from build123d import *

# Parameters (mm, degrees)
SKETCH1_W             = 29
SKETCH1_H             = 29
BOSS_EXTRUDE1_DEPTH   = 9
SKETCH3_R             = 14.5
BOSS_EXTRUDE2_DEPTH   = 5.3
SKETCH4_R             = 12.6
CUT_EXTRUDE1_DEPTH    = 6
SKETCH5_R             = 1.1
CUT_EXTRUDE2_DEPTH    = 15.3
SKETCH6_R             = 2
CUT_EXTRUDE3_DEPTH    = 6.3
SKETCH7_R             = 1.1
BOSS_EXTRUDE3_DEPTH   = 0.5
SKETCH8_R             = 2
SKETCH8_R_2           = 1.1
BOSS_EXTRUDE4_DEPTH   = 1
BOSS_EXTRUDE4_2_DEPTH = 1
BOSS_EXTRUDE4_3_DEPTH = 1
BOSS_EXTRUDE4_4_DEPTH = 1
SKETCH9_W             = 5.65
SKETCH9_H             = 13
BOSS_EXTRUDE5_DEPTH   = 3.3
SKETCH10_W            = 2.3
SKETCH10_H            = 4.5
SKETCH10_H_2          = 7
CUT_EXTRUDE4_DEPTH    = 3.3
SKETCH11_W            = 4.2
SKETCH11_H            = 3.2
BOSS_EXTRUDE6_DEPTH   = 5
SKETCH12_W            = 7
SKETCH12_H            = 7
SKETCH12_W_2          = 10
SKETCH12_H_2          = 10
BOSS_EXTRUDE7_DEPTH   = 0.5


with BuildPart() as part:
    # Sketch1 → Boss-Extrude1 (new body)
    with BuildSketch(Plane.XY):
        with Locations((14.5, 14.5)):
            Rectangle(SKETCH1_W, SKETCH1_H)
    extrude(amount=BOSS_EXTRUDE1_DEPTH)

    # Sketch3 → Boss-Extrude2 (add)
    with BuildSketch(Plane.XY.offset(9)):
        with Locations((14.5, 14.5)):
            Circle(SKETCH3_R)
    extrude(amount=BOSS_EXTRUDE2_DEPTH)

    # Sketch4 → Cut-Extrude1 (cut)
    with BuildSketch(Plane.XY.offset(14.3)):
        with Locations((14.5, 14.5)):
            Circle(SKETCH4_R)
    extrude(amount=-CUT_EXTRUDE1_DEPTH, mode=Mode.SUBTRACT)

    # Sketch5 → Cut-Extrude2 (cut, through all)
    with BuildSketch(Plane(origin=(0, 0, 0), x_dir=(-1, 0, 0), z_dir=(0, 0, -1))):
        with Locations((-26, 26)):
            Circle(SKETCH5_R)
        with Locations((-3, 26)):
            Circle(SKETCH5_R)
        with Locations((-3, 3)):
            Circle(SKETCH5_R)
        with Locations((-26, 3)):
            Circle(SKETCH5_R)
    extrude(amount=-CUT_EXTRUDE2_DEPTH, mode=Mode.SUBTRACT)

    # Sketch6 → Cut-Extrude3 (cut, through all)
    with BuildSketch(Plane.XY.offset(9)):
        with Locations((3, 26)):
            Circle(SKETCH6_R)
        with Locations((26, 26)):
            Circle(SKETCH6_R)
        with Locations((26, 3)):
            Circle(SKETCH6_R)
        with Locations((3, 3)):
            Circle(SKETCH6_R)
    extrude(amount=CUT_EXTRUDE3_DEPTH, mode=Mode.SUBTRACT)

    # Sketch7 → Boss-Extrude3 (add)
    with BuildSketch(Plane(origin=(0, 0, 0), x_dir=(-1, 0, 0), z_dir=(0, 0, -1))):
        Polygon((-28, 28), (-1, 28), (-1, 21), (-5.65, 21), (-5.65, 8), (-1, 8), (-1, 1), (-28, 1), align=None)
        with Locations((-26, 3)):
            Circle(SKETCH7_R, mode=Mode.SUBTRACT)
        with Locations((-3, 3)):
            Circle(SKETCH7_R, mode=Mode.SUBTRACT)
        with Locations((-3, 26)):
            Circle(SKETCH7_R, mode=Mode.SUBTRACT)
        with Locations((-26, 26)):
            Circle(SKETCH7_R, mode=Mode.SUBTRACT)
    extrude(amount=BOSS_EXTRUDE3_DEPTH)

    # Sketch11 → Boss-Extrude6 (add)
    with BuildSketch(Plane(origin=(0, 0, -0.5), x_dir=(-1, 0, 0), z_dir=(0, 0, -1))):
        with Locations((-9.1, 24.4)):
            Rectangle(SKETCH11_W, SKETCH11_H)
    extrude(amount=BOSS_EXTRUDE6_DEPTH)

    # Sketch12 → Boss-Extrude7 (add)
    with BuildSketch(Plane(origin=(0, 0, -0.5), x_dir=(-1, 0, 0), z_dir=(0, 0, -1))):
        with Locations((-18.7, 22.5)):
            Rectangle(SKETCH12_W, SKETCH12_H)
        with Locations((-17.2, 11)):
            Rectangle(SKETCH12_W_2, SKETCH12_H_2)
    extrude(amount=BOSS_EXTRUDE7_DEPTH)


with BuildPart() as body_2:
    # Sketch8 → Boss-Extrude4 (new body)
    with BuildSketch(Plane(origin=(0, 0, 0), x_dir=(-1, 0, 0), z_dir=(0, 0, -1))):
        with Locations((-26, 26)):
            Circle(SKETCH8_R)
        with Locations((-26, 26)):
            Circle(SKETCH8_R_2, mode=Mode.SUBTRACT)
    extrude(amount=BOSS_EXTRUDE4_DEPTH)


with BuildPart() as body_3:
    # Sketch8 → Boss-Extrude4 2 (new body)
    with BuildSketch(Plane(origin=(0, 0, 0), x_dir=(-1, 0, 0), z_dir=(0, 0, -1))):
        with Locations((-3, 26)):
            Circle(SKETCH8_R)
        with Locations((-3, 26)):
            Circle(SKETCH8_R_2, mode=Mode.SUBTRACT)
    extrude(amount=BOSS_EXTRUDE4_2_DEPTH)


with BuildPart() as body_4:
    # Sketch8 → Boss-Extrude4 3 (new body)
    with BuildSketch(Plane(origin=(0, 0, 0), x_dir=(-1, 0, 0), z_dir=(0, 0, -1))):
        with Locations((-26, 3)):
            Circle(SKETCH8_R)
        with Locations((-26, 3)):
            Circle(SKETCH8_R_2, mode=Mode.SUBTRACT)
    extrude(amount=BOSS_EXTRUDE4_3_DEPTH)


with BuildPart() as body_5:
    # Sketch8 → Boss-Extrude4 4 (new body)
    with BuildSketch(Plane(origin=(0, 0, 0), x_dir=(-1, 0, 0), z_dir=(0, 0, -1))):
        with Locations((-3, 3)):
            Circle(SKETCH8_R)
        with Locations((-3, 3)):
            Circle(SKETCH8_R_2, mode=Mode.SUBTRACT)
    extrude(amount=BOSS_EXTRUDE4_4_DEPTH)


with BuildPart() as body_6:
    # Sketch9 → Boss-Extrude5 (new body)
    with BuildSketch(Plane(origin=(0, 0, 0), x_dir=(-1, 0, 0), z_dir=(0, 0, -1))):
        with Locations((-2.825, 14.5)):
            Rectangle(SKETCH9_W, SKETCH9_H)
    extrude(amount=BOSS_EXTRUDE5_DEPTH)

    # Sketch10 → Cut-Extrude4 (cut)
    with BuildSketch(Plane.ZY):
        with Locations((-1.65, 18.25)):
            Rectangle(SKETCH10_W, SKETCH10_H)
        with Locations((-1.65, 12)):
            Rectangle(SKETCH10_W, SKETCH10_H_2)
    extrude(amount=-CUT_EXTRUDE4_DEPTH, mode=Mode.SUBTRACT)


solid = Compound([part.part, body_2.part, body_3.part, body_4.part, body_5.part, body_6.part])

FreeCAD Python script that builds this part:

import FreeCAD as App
import Part
import Sketcher

doc = App.newDocument("Part")
body = doc.addObject("PartDesign::Body", "Body")

sketch1 = body.newObject("Sketcher::SketchObject", "Sketch")
sketch1.AttachmentSupport = (doc.getObject("XY_Plane"), [""])
sketch1.MapMode = "FlatFace"
sketch1.addGeometry([
    Part.LineSegment(App.Vector(0, 29, 0), App.Vector(0, 0, 0)),
    Part.LineSegment(App.Vector(0, 0, 0), App.Vector(29, 0, 0)),
    Part.LineSegment(App.Vector(29, 0, 0), App.Vector(29, 29, 0)),
    Part.LineSegment(App.Vector(29, 29, 0), App.Vector(0, 29, 0)),
], False)
sketch1.addConstraint([
    Sketcher.Constraint("Coincident", 0, 2, 1, 1),
    Sketcher.Constraint("Coincident", 1, 2, 2, 1),
    Sketcher.Constraint("Coincident", 2, 2, 3, 1),
    Sketcher.Constraint("Coincident", 3, 2, 0, 1),
    Sketcher.Constraint("Vertical", 0),
    Sketcher.Constraint("Horizontal", 1),
    Sketcher.Constraint("Vertical", 2),
    Sketcher.Constraint("Horizontal", 3),
    Sketcher.Constraint("Coincident", 0, 2, -1, 1),
    Sketcher.Constraint("Equal", 3, 0),
    Sketcher.Constraint("DistanceX", 1, 1, 1, 2, 29.0),
])
pad1 = body.newObject("PartDesign::Pad", "Pad")
pad1.Profile = sketch1
pad1.Length = 9

sketch2 = body.newObject("Sketcher::SketchObject", "Sketch001")
sketch2.AttachmentSupport = (doc.getObject("XY_Plane"), [""])
sketch2.MapMode = "FlatFace"
sketch2.AttachmentOffset = App.Placement(App.Vector(0, 0, 9), App.Rotation())
sketch2.addGeometry(Part.Circle(App.Vector(14, 14, 0), App.Vector(0, 0, 1), 14), False)
sketch2.addConstraint([
    Sketcher.Constraint("Diameter", 0, 29.0),
    Sketcher.Constraint("DistanceX", -1, 1, 0, 3, 14.5),
    Sketcher.Constraint("DistanceY", -1, 1, 0, 3, 14.5),
])
pad2 = body.newObject("PartDesign::Pad", "Pad001")
pad2.Profile = sketch2
pad2.Length = 5.3

sketch3 = body.newObject("Sketcher::SketchObject", "Sketch002")
sketch3.AttachmentSupport = (doc.getObject("XY_Plane"), [""])
sketch3.MapMode = "FlatFace"
sketch3.AttachmentOffset = App.Placement(App.Vector(0, 0, 14.3), App.Rotation())
sketch3.addGeometry(Part.Circle(App.Vector(14, 14, 0), App.Vector(0, 0, 1), 13), False)
sketch3.addConstraint([
    Sketcher.Constraint("Diameter", 0, 25.2),
    Sketcher.Constraint("DistanceX", -1, 1, 0, 3, 14.5),
    Sketcher.Constraint("DistanceY", -1, 1, 0, 3, 14.5),
])
pocket1 = body.newObject("PartDesign::Pocket", "Pocket")
pocket1.Profile = sketch3
pocket1.Length = 6

sketch4 = body.newObject("Sketcher::SketchObject", "Sketch003")
sketch4.AttachmentSupport = (doc.getObject("XY_Plane"), [""])
sketch4.MapMode = "FlatFace"
sketch4.addGeometry([
    Part.Circle(App.Vector(26, 26, 0), App.Vector(0, 0, 1), 1.1),
    Part.Circle(App.Vector(3, 26, 0), App.Vector(0, 0, 1), 1.1),
    Part.Circle(App.Vector(3, 3, 0), App.Vector(0, 0, 1), 1.1),
    Part.Circle(App.Vector(26, 3, 0), App.Vector(0, 0, 1), 1.1),
], False)
sketch4.addConstraint([
    Sketcher.Constraint("Equal", 0, 1),
    Sketcher.Constraint("Equal", 1, 2),
    Sketcher.Constraint("Equal", 2, 3),
    Sketcher.Constraint("Horizontal", 0, 3, 1, 3),
    Sketcher.Constraint("Horizontal", 2, 3, 3, 3),
    Sketcher.Constraint("Vertical", 1, 3, 2, 3),
    Sketcher.Constraint("Vertical", 0, 3, 3, 3),
    Sketcher.Constraint("Diameter", 0, 2.2),
    Sketcher.Constraint("DistanceX", -1, 1, 0, 3, 26.0),
    Sketcher.Constraint("DistanceY", -1, 1, 0, 3, 26.0),
    Sketcher.Constraint("DistanceX", -1, 1, 1, 3, 3.0),
    Sketcher.Constraint("DistanceY", -1, 1, 2, 3, 3.0),
])
pocket2 = body.newObject("PartDesign::Pocket", "Pocket001")
pocket2.Profile = sketch4
pocket2.Type = "ThroughAll"
pocket2.Reversed = True

sketch5 = body.newObject("Sketcher::SketchObject", "Sketch004")
sketch5.AttachmentSupport = (doc.getObject("XY_Plane"), [""])
sketch5.MapMode = "FlatFace"
sketch5.AttachmentOffset = App.Placement(App.Vector(0, 0, 9), App.Rotation())
sketch5.addGeometry([
    Part.Circle(App.Vector(3, 26, 0), App.Vector(0, 0, 1), 2),
    Part.Circle(App.Vector(26, 26, 0), App.Vector(0, 0, 1), 2),
    Part.Circle(App.Vector(26, 3, 0), App.Vector(0, 0, 1), 2),
    Part.Circle(App.Vector(3, 3, 0), App.Vector(0, 0, 1), 2),
], False)
sketch5.addConstraint([
    Sketcher.Constraint("Equal", 0, 1),
    Sketcher.Constraint("Equal", 1, 2),
    Sketcher.Constraint("Equal", 2, 3),
    Sketcher.Constraint("Horizontal", 0, 3, 1, 3),
    Sketcher.Constraint("Horizontal", 2, 3, 3, 3),
    Sketcher.Constraint("Vertical", 1, 3, 2, 3),
    Sketcher.Constraint("Vertical", 0, 3, 3, 3),
    Sketcher.Constraint("Diameter", 0, 4.0),
    Sketcher.Constraint("DistanceX", -1, 1, 0, 3, 3.0),
    Sketcher.Constraint("DistanceY", -1, 1, 0, 3, 26.0),
    Sketcher.Constraint("DistanceX", -1, 1, 1, 3, 26.0),
    Sketcher.Constraint("DistanceY", -1, 1, 2, 3, 3.0),
])
pocket3 = body.newObject("PartDesign::Pocket", "Pocket002")
pocket3.Profile = sketch5
pocket3.Type = "ThroughAll"
pocket3.Reversed = True

sketch6 = body.newObject("Sketcher::SketchObject", "Sketch005")
sketch6.AttachmentSupport = (doc.getObject("XY_Plane"), [""])
sketch6.MapMode = "FlatFace"
sketch6.addGeometry([
    Part.LineSegment(App.Vector(1, 28, 0), App.Vector(28, 28, 0)),
    Part.LineSegment(App.Vector(28, 28, 0), App.Vector(28, 1, 0)),
    Part.LineSegment(App.Vector(28, 1, 0), App.Vector(1, 1, 0)),
    Part.LineSegment(App.Vector(1, 1, 0), App.Vector(1, 8, 0)),
    Part.LineSegment(App.Vector(1, 8, 0), App.Vector(5.7, 8, 0)),
    Part.LineSegment(App.Vector(5.7, 8, 0), App.Vector(5.7, 21, 0)),
    Part.LineSegment(App.Vector(5.7, 21, 0), App.Vector(1, 21, 0)),
    Part.LineSegment(App.Vector(1, 21, 0), App.Vector(1, 28, 0)),
    Part.Circle(App.Vector(3, 3, 0), App.Vector(0, 0, 1), 1.1),
    Part.Circle(App.Vector(26, 3, 0), App.Vector(0, 0, 1), 1.1),
    Part.Circle(App.Vector(3, 26, 0), App.Vector(0, 0, 1), 1.1),
    Part.Circle(App.Vector(26, 26, 0), App.Vector(0, 0, 1), 1.1),
], False)
sketch6.addConstraint([
    Sketcher.Constraint("Coincident", 0, 2, 1, 1),
    Sketcher.Constraint("Coincident", 1, 2, 2, 1),
    Sketcher.Constraint("Coincident", 2, 2, 3, 1),
    Sketcher.Constraint("Coincident", 3, 2, 4, 1),
    Sketcher.Constraint("Coincident", 4, 2, 5, 1),
    Sketcher.Constraint("Coincident", 5, 2, 6, 1),
    Sketcher.Constraint("Coincident", 6, 2, 7, 1),
    Sketcher.Constraint("Coincident", 7, 2, 0, 1),
    Sketcher.Constraint("Horizontal", 0),
    Sketcher.Constraint("Vertical", 1),
    Sketcher.Constraint("Horizontal", 2),
    Sketcher.Constraint("Vertical", 3),
    Sketcher.Constraint("Horizontal", 4),
    Sketcher.Constraint("Vertical", 5),
    Sketcher.Constraint("Horizontal", 6),
    Sketcher.Constraint("Vertical", 7),
    Sketcher.Constraint("Equal", 8, 9),
    Sketcher.Constraint("Equal", 9, 10),
    Sketcher.Constraint("Equal", 10, 11),
    Sketcher.Constraint("Horizontal", 8, 3, 9, 3),
    Sketcher.Constraint("Horizontal", 10, 3, 11, 3),
    Sketcher.Constraint("Vertical", 8, 3, 10, 3),
    Sketcher.Constraint("Vertical", 9, 3, 11, 3),
    Sketcher.Constraint("Vertical", 3, 2, 6, 2),
    Sketcher.Constraint("Equal", 2, 1),
    Sketcher.Constraint("Equal", 3, 7),
    Sketcher.Constraint("Diameter", 8, 2.2),
    Sketcher.Constraint("DistanceX", 0, 1, 0, 2, 27.0),
    Sketcher.Constraint("DistanceY", 3, 1, 3, 2, 7.0),
    Sketcher.Constraint("DistanceX", -1, 1, 8, 3, 3.0),
    Sketcher.Constraint("DistanceY", -1, 1, 8, 3, 3.0),
    Sketcher.Constraint("DistanceX", -1, 1, 9, 3, 26.0),
    Sketcher.Constraint("DistanceY", -1, 1, 10, 3, 26.0),
    Sketcher.Constraint("DistanceX", -1, 1, 0, 2, 28.0),
    Sketcher.Constraint("DistanceY", -1, 1, 0, 2, 28.0),
    Sketcher.Constraint("DistanceX", 4, 1, 4, 2, 4.65),
])
pad3 = body.newObject("PartDesign::Pad", "Pad002")
pad3.Profile = sketch6
pad3.Length = 0.5
pad3.Reversed = True

sketch7 = body.newObject("Sketcher::SketchObject", "Sketch006")
sketch7.AttachmentSupport = (doc.getObject("XY_Plane"), [""])
sketch7.MapMode = "FlatFace"
sketch7.AttachmentOffset = App.Placement(App.Vector(0, 0, -0.5), App.Rotation())
sketch7.addGeometry([
    Part.LineSegment(App.Vector(11.2, 26, 0), App.Vector(11.2, 22.8, 0)),
    Part.LineSegment(App.Vector(11.2, 22.8, 0), App.Vector(7, 22.8, 0)),
    Part.LineSegment(App.Vector(7, 22.8, 0), App.Vector(7, 26, 0)),
    Part.LineSegment(App.Vector(7, 26, 0), App.Vector(11.2, 26, 0)),
], False)
sketch7.addConstraint([
    Sketcher.Constraint("Coincident", 0, 2, 1, 1),
    Sketcher.Constraint("Coincident", 1, 2, 2, 1),
    Sketcher.Constraint("Coincident", 2, 2, 3, 1),
    Sketcher.Constraint("Coincident", 3, 2, 0, 1),
    Sketcher.Constraint("Vertical", 0),
    Sketcher.Constraint("Horizontal", 1),
    Sketcher.Constraint("Vertical", 2),
    Sketcher.Constraint("Horizontal", 3),
    Sketcher.Constraint("DistanceX", 1, 2, 1, 1, 4.2),
    Sketcher.Constraint("DistanceY", 0, 2, 0, 1, 3.2),
    Sketcher.Constraint("DistanceX", -1, 1, 1, 2, 7.0),
    Sketcher.Constraint("DistanceY", -1, 1, 2, 2, 26.0),
])
pad4 = body.newObject("PartDesign::Pad", "Pad003")
pad4.Profile = sketch7
pad4.Length = 5
pad4.Reversed = True

sketch8 = body.newObject("Sketcher::SketchObject", "Sketch007")
sketch8.AttachmentSupport = (doc.getObject("XY_Plane"), [""])
sketch8.MapMode = "FlatFace"
sketch8.AttachmentOffset = App.Placement(App.Vector(0, 0, -0.5), App.Rotation())
sketch8.addGeometry([
    Part.LineSegment(App.Vector(22, 26, 0), App.Vector(22, 19, 0)),
    Part.LineSegment(App.Vector(22, 19, 0), App.Vector(15, 19, 0)),
    Part.LineSegment(App.Vector(15, 19, 0), App.Vector(15, 26, 0)),
    Part.LineSegment(App.Vector(15, 26, 0), App.Vector(22, 26, 0)),
    Part.LineSegment(App.Vector(22, 16, 0), App.Vector(22, 6, 0)),
    Part.LineSegment(App.Vector(22, 6, 0), App.Vector(12, 6, 0)),
    Part.LineSegment(App.Vector(12, 6, 0), App.Vector(12, 16, 0)),
    Part.LineSegment(App.Vector(12, 16, 0), App.Vector(22, 16, 0)),
], False)
sketch8.addConstraint([
    Sketcher.Constraint("Coincident", 0, 2, 1, 1),
    Sketcher.Constraint("Coincident", 1, 2, 2, 1),
    Sketcher.Constraint("Coincident", 2, 2, 3, 1),
    Sketcher.Constraint("Coincident", 3, 2, 0, 1),
    Sketcher.Constraint("Coincident", 4, 2, 5, 1),
    Sketcher.Constraint("Coincident", 5, 2, 6, 1),
    Sketcher.Constraint("Coincident", 6, 2, 7, 1),
    Sketcher.Constraint("Coincident", 7, 2, 4, 1),
    Sketcher.Constraint("Vertical", 0),
    Sketcher.Constraint("Horizontal", 1),
    Sketcher.Constraint("Vertical", 2),
    Sketcher.Constraint("Horizontal", 3),
    Sketcher.Constraint("Vertical", 4),
    Sketcher.Constraint("Horizontal", 5),
    Sketcher.Constraint("Vertical", 6),
    Sketcher.Constraint("Horizontal", 7),
    Sketcher.Constraint("Vertical", 3, 2, 4, 2),
    Sketcher.Constraint("Equal", 3, 0),
    Sketcher.Constraint("Equal", 7, 4),
    Sketcher.Constraint("DistanceX", 1, 2, 1, 1, 7.0),
    Sketcher.Constraint("DistanceX", 5, 2, 5, 1, 10.0),
    Sketcher.Constraint("DistanceY", -1, 1, 0, 2, 19.0),
    Sketcher.Constraint("DistanceY", -1, 1, 4, 2, 6.0),
    Sketcher.Constraint("DistanceX", -1, 1, 0, 2, 22.2),
])
pad5 = body.newObject("PartDesign::Pad", "Pad004")
pad5.Profile = sketch8
pad5.Length = 0.5
pad5.Reversed = True
body2 = doc.addObject("PartDesign::Body", "Body001")

sketch9 = body2.newObject("Sketcher::SketchObject", "Sketch008")
sketch9.AttachmentSupport = (doc.getObject("XY_Plane001"), [""])
sketch9.MapMode = "FlatFace"
sketch9.addGeometry([
    Part.Circle(App.Vector(26, 26, 0), App.Vector(0, 0, 1), 2),
    Part.Circle(App.Vector(26, 26, 0), App.Vector(0, 0, 1), 1.1),
], False)
sketch9.addConstraint([
    Sketcher.Constraint("Coincident", 1, 3, 0, 3),
    Sketcher.Constraint("Diameter", 0, 4.0),
    Sketcher.Constraint("Diameter", 1, 2.2),
    Sketcher.Constraint("DistanceX", -1, 1, 0, 3, 26.0),
    Sketcher.Constraint("DistanceY", -1, 1, 0, 3, 26.0),
])
pad6 = body2.newObject("PartDesign::Pad", "Pad005")
pad6.Profile = sketch9
pad6.Length = 1
pad6.Reversed = True
body3 = doc.addObject("PartDesign::Body", "Body002")

sketch10 = body3.newObject("Sketcher::SketchObject", "Sketch009")
sketch10.AttachmentSupport = (doc.getObject("XY_Plane002"), [""])
sketch10.MapMode = "FlatFace"
sketch10.addGeometry([
    Part.Circle(App.Vector(3, 26, 0), App.Vector(0, 0, 1), 2),
    Part.Circle(App.Vector(3, 26, 0), App.Vector(0, 0, 1), 1.1),
], False)
sketch10.addConstraint([
    Sketcher.Constraint("Coincident", 1, 3, 0, 3),
    Sketcher.Constraint("Diameter", 0, 4.0),
    Sketcher.Constraint("Diameter", 1, 2.2),
    Sketcher.Constraint("DistanceX", -1, 1, 0, 3, 3.0),
    Sketcher.Constraint("DistanceY", -1, 1, 0, 3, 26.0),
])
pad7 = body3.newObject("PartDesign::Pad", "Pad006")
pad7.Profile = sketch10
pad7.Length = 1
pad7.Reversed = True
body4 = doc.addObject("PartDesign::Body", "Body003")

sketch11 = body4.newObject("Sketcher::SketchObject", "Sketch010")
sketch11.AttachmentSupport = (doc.getObject("XY_Plane003"), [""])
sketch11.MapMode = "FlatFace"
sketch11.addGeometry([
    Part.Circle(App.Vector(26, 3, 0), App.Vector(0, 0, 1), 2),
    Part.Circle(App.Vector(26, 3, 0), App.Vector(0, 0, 1), 1.1),
], False)
sketch11.addConstraint([
    Sketcher.Constraint("Coincident", 1, 3, 0, 3),
    Sketcher.Constraint("Diameter", 0, 4.0),
    Sketcher.Constraint("Diameter", 1, 2.2),
    Sketcher.Constraint("DistanceX", -1, 1, 0, 3, 26.0),
    Sketcher.Constraint("DistanceY", -1, 1, 0, 3, 3.0),
])
pad8 = body4.newObject("PartDesign::Pad", "Pad007")
pad8.Profile = sketch11
pad8.Length = 1
pad8.Reversed = True
body5 = doc.addObject("PartDesign::Body", "Body004")

sketch12 = body5.newObject("Sketcher::SketchObject", "Sketch011")
sketch12.AttachmentSupport = (doc.getObject("XY_Plane004"), [""])
sketch12.MapMode = "FlatFace"
sketch12.addGeometry([
    Part.Circle(App.Vector(3, 3, 0), App.Vector(0, 0, 1), 2),
    Part.Circle(App.Vector(3, 3, 0), App.Vector(0, 0, 1), 1.1),
], False)
sketch12.addConstraint([
    Sketcher.Constraint("Coincident", 1, 3, 0, 3),
    Sketcher.Constraint("Diameter", 0, 4.0),
    Sketcher.Constraint("Diameter", 1, 2.2),
    Sketcher.Constraint("DistanceX", -1, 1, 0, 3, 3.0),
    Sketcher.Constraint("DistanceY", -1, 1, 0, 3, 3.0),
])
pad9 = body5.newObject("PartDesign::Pad", "Pad008")
pad9.Profile = sketch12
pad9.Length = 1
pad9.Reversed = True
body6 = doc.addObject("PartDesign::Body", "Body005")

sketch13 = body6.newObject("Sketcher::SketchObject", "Sketch012")
sketch13.AttachmentSupport = (doc.getObject("XY_Plane005"), [""])
sketch13.MapMode = "FlatFace"
sketch13.addGeometry([
    Part.LineSegment(App.Vector(6, 21, 0), App.Vector(6, 8, 0)),
    Part.LineSegment(App.Vector(6, 8, 0), App.Vector(0, 8, 0)),
    Part.LineSegment(App.Vector(0, 8, 0), App.Vector(0, 21, 0)),
    Part.LineSegment(App.Vector(0, 21, 0), App.Vector(6, 21, 0)),
], False)
sketch13.addConstraint([
    Sketcher.Constraint("Coincident", 0, 2, 1, 1),
    Sketcher.Constraint("Coincident", 1, 2, 2, 1),
    Sketcher.Constraint("Coincident", 2, 2, 3, 1),
    Sketcher.Constraint("Coincident", 3, 2, 0, 1),
    Sketcher.Constraint("Vertical", 0),
    Sketcher.Constraint("Horizontal", 1),
    Sketcher.Constraint("Vertical", 2),
    Sketcher.Constraint("Horizontal", 3),
    Sketcher.Constraint("PointOnObject", 1, 2, -2),
    Sketcher.Constraint("DistanceY", 0, 2, 0, 1, 13.0),
    Sketcher.Constraint("DistanceY", -1, 1, 0, 2, 8.0),
    Sketcher.Constraint("DistanceX", 1, 2, 1, 1, 5.65),
])
pad10 = body6.newObject("PartDesign::Pad", "Pad009")
pad10.Profile = sketch13
pad10.Length = 3.3
pad10.Reversed = True

sketch14 = body6.newObject("Sketcher::SketchObject", "Sketch013")
sketch14.AttachmentSupport = (doc.getObject("YZ_Plane005"), [""])
sketch14.MapMode = "FlatFace"
sketch14.addGeometry([
    Part.LineSegment(App.Vector(20.5, -2.8, 0), App.Vector(16, -2.8, 0)),
    Part.LineSegment(App.Vector(16, -2.8, 0), App.Vector(16, -0.5, 0)),
    Part.LineSegment(App.Vector(16, -0.5, 0), App.Vector(20.5, -0.5, 0)),
    Part.LineSegment(App.Vector(20.5, -0.5, 0), App.Vector(20.5, -2.8, 0)),
    Part.LineSegment(App.Vector(15.5, -2.8, 0), App.Vector(8.5, -2.8, 0)),
    Part.LineSegment(App.Vector(8.5, -2.8, 0), App.Vector(8.5, -0.5, 0)),
    Part.LineSegment(App.Vector(8.5, -0.5, 0), App.Vector(15.5, -0.5, 0)),
    Part.LineSegment(App.Vector(15.5, -0.5, 0), App.Vector(15.5, -2.8, 0)),
], False)
sketch14.addConstraint([
    Sketcher.Constraint("Coincident", 0, 2, 1, 1),
    Sketcher.Constraint("Coincident", 1, 2, 2, 1),
    Sketcher.Constraint("Coincident", 2, 2, 3, 1),
    Sketcher.Constraint("Coincident", 3, 2, 0, 1),
    Sketcher.Constraint("Coincident", 4, 2, 5, 1),
    Sketcher.Constraint("Coincident", 5, 2, 6, 1),
    Sketcher.Constraint("Coincident", 6, 2, 7, 1),
    Sketcher.Constraint("Coincident", 7, 2, 4, 1),
    Sketcher.Constraint("Horizontal", 0),
    Sketcher.Constraint("Vertical", 1),
    Sketcher.Constraint("Horizontal", 2),
    Sketcher.Constraint("Vertical", 3),
    Sketcher.Constraint("Horizontal", 4),
    Sketcher.Constraint("Vertical", 5),
    Sketcher.Constraint("Horizontal", 6),
    Sketcher.Constraint("Vertical", 7),
    Sketcher.Constraint("Horizontal", 3, 2, 4, 2),
    Sketcher.Constraint("Horizontal", 2, 2, 5, 2),
    Sketcher.Constraint("DistanceX", 4, 2, 4, 1, 7.0),
    Sketcher.Constraint("DistanceX", 0, 2, 0, 1, 4.5),
    Sketcher.Constraint("DistanceY", 1, 1, 1, 2, 2.3),
    Sketcher.Constraint("DistanceX", -1, 1, 0, 2, 16.0),
    Sketcher.Constraint("DistanceX", 4, 2, 3, 2, 12.0),
    Sketcher.Constraint("DistanceY", 0, 2, -1, 1, 2.8),
])
pocket4 = body6.newObject("PartDesign::Pocket", "Pocket003")
pocket4.Profile = sketch14
pocket4.Length = 3.3
pocket4.Reversed = True

doc.recompute()
